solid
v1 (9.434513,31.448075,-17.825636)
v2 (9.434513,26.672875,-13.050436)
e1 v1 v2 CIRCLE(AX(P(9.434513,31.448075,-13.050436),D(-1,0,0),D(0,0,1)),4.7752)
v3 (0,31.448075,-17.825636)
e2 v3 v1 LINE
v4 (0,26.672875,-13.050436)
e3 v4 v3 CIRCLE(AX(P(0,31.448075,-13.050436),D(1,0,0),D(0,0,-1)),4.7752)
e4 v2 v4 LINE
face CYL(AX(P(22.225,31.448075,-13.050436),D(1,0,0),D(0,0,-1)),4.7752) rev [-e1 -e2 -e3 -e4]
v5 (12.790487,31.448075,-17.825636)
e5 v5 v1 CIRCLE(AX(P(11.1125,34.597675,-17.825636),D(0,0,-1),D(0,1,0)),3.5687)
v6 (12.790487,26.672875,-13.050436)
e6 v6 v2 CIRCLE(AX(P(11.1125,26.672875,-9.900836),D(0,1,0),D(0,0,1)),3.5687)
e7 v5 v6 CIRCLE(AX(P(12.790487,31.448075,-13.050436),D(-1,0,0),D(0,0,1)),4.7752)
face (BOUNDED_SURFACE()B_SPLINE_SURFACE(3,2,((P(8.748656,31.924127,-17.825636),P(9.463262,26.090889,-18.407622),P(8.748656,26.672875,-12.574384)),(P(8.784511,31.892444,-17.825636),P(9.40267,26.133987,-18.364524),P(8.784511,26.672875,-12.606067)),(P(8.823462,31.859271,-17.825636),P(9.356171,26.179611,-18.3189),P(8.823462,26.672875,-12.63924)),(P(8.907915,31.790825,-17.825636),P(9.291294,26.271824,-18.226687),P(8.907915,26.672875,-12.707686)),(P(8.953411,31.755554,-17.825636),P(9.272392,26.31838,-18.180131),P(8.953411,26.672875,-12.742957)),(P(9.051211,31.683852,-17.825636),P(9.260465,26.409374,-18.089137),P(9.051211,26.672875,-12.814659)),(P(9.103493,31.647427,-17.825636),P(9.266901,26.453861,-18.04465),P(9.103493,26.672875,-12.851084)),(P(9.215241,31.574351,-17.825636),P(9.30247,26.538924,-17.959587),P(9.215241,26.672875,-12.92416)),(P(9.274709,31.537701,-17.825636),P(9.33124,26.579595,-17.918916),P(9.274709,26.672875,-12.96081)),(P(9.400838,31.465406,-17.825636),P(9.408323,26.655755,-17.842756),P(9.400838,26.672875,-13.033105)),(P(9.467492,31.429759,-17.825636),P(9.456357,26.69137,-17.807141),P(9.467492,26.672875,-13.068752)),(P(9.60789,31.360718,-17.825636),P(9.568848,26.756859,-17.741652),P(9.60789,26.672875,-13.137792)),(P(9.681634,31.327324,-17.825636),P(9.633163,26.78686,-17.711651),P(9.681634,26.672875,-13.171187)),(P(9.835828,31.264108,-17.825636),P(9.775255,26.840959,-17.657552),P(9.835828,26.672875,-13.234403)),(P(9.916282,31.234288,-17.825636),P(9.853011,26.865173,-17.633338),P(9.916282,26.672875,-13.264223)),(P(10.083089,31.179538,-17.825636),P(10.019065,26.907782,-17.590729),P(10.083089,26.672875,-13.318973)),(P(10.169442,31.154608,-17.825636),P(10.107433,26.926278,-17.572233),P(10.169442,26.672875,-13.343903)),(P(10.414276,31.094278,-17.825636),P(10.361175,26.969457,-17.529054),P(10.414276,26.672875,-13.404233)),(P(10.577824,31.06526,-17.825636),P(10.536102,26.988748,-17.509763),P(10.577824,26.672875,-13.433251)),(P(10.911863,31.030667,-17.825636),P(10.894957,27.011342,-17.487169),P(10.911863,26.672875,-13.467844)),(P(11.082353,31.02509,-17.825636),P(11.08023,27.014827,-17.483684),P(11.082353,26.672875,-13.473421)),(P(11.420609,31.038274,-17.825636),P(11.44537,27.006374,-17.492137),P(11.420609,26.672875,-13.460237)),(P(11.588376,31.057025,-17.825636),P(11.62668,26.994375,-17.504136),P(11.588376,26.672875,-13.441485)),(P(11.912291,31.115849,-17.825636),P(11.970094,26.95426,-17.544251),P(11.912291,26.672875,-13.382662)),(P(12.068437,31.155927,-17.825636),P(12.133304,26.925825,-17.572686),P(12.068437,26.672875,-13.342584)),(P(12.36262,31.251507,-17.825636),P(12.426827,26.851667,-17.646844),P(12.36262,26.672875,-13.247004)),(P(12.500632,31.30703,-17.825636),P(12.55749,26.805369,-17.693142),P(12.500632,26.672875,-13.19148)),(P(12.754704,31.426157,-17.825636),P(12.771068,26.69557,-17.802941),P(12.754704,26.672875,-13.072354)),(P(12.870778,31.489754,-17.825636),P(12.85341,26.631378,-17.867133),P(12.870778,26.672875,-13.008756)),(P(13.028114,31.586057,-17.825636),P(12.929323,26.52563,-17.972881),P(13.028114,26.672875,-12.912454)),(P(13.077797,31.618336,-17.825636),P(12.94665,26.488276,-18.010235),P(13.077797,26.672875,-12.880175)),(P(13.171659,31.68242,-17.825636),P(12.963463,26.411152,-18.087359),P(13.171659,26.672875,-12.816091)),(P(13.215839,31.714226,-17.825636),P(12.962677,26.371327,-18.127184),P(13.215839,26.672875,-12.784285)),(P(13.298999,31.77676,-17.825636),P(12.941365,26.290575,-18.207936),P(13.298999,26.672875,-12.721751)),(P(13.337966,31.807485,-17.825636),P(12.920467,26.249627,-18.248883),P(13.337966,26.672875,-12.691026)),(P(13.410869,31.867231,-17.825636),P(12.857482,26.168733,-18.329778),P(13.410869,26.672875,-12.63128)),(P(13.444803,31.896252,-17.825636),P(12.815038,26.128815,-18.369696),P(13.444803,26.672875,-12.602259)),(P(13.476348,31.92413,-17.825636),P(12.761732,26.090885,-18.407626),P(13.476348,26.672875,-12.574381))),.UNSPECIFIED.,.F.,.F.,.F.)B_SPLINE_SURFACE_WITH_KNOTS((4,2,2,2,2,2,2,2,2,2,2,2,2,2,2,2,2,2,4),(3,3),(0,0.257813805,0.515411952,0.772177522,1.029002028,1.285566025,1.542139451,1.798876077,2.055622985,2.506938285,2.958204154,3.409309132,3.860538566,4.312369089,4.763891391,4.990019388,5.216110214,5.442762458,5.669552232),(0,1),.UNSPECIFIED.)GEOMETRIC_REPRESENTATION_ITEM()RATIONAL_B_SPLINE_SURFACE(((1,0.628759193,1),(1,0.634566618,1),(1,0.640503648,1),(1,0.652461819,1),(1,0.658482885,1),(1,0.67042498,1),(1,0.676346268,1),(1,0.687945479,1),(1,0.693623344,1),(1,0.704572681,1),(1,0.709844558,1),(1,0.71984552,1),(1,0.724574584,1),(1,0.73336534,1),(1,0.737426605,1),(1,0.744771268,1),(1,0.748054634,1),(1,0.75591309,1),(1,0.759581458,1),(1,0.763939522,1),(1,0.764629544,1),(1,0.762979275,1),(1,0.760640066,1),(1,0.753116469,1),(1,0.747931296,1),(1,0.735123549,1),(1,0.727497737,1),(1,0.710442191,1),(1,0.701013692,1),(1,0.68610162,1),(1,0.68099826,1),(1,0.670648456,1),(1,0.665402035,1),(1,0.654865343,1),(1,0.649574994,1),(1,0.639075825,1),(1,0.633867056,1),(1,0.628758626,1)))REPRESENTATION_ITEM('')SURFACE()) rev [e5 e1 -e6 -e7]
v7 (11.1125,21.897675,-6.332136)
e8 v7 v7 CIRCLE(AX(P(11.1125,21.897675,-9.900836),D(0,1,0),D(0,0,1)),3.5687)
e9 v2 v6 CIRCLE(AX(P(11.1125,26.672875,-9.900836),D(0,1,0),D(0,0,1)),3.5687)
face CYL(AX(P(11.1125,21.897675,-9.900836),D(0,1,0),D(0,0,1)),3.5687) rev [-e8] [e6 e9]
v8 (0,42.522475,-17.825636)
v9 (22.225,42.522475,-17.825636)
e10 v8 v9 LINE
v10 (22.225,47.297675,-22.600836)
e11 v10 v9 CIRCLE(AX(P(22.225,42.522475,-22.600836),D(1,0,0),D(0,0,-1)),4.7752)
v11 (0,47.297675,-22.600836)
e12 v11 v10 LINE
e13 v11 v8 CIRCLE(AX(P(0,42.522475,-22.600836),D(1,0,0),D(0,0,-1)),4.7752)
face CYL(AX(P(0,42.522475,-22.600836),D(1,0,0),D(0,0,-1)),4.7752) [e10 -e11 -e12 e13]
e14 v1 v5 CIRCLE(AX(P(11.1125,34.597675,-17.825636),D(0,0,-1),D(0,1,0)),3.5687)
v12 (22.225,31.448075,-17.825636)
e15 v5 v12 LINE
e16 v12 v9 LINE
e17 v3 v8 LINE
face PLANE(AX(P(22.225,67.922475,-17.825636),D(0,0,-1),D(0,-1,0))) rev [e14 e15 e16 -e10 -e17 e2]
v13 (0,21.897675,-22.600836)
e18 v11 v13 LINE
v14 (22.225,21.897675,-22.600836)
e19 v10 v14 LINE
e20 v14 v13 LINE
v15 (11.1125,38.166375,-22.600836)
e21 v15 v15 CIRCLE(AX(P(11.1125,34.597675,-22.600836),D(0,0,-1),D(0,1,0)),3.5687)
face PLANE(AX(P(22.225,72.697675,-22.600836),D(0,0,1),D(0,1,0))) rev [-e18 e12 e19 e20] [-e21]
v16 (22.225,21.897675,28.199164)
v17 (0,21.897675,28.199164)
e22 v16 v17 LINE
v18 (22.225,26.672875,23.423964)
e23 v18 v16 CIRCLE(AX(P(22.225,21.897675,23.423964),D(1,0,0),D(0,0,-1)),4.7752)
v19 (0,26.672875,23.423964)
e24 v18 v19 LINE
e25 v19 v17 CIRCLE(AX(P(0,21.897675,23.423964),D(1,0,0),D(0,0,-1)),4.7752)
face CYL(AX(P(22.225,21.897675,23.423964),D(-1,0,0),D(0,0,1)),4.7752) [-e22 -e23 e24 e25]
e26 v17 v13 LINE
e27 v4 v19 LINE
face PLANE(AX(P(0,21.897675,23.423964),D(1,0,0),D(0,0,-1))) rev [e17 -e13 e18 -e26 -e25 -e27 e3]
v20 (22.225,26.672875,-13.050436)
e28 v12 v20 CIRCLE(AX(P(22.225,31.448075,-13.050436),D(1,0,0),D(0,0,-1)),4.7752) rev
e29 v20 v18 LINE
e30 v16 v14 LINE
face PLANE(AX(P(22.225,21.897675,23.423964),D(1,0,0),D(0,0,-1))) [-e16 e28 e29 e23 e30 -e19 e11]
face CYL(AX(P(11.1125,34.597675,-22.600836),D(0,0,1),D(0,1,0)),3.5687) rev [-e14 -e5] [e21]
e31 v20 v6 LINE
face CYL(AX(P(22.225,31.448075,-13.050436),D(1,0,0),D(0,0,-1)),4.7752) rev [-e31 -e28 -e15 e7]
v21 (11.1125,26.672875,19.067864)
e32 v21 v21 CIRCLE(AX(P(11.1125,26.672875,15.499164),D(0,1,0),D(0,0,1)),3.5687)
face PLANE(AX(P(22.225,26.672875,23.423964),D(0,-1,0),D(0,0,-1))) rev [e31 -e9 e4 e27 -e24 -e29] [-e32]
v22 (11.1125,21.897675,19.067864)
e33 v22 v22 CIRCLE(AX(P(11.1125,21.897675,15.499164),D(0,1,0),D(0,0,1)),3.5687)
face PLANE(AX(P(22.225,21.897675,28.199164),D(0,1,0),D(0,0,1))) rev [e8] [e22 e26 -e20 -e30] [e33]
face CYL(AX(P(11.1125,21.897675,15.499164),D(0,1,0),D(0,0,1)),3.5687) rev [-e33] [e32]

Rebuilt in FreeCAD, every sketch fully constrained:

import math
import FreeCAD as App
import Part
import Sketcher
Q = App.Units.Quantity


def edges_at(feature, points):
    """Names of the edges that pass closest to the given points."""
    edges = feature.Shape.Edges
    near = lambda p: min(range(len(edges)), key=lambda i: edges[i].distToShape(Part.Vertex(*p))[0])
    return sorted({f"Edge{near(p) + 1}" for p in points})

doc = App.newDocument("Part")
body = doc.addObject("PartDesign::Body", "Body")

# Sketch on YZ plane
sketch1 = body.newObject("Sketcher::SketchObject", "Sketch")
sketch1.AttachmentSupport = (doc.getObject("YZ_Plane"), [""])
sketch1.MapMode = "FlatFace"
sketch1.addGeometry([
    Part.LineSegment(App.Vector(21.9, 28.2, 0), App.Vector(21.9, -22.6, 0)),
    Part.LineSegment(App.Vector(21.9, -22.6, 0), App.Vector(26.7, -17.8, 0)),
    Part.LineSegment(App.Vector(26.7, -17.8, 0), App.Vector(26.7, 23.4, 0)),
    Part.ArcOfCircle(Part.Circle(App.Vector(21.9, 23.4, 0), App.Vector(0, 0, 1), 4.8), math.radians(0), math.radians(90)),
], False)
sketch1.addConstraint([
    Sketcher.Constraint("Coincident", 0, 2, 1, 1),
    Sketcher.Constraint("Coincident", 1, 2, 2, 1),
    Sketcher.Constraint("Tangent", 2, 2, 3, 1),
    Sketcher.Constraint("Coincident", 3, 2, 0, 1),
    Sketcher.Constraint("Vertical", 0),
    Sketcher.Constraint("Vertical", 2),
    Sketcher.Constraint("Vertical", 3, 3, 0, 2),
    Sketcher.Constraint("DistanceY", 0, 2, 0, 1, Q("2 in")),
    Sketcher.Constraint("Angle", 1, Q("45 deg")),
    Sketcher.Constraint("Radius", 3, Q("0.188 in")),
    Sketcher.Constraint("DistanceX", -1, 1, 3, 3, Q("21.897675 mm")),
    Sketcher.Constraint("DistanceY", -1, 1, 3, 3, Q("23.423964 mm")),
])
pad1 = body.newObject("PartDesign::Pad", "Pad")
pad1.Profile = sketch1
pad1.Length = Q("0.875 in")

# Sketch on XZ plane
sketch2 = body.newObject("Sketcher::SketchObject", "Sketch001")
sketch2.AttachmentSupport = (doc.getObject("XZ_Plane"), [""])
sketch2.MapMode = "FlatFace"
sketch2.AttachmentOffset = App.Placement(App.Vector(0, 0, -26.672875), App.Rotation())
sketch2.addGeometry([
    Part.Circle(App.Vector(11.1, 15.5, 0), App.Vector(0, 0, 1), 3.6),
    Part.Circle(App.Vector(11.1, -9.9, 0), App.Vector(0, 0, 1), 3.6),
], False)
sketch2.addConstraint([
    Sketcher.Constraint("Equal", 0, 1),
    Sketcher.Constraint("Vertical", 0, 3, 1, 3),
    Sketcher.Constraint("Diameter", 0, Q("0.281 in")),
    Sketcher.Constraint("DistanceY", 1, 3, 0, 3, Q("1 in")),
    Sketcher.Constraint("DistanceX", -1, 1, 0, 3, Q("0.4375 in")),
    Sketcher.Constraint("DistanceY", -1, 1, 0, 3, Q("15.499164 mm")),
])
pocket1 = body.newObject("PartDesign::Pocket", "Pocket")
pocket1.Profile = sketch2
pocket1.Type = "ThroughAll"
pocket1.Reversed = True
body2 = doc.addObject("PartDesign::Body", "Body001")
doc.recompute()

body2.BaseFeature = body
doc.recompute()

mirroring = doc.addObject("Part::Mirroring", "Mirroring")
mirroring.Source = body
mirroring.Base = App.Vector(22.225, 21.897675, -22.600836)
mirroring.Normal = App.Vector(0, -0.707106781, 0.707106781)
body3 = doc.addObject("PartDesign::Body", "Body002")
body3.BaseFeature = mirroring
boolean = body2.newObject("PartDesign::Boolean", "Boolean")
boolean.Type = "Fuse"
boolean.addObjects([body3])
doc.recompute()

fillet = body2.newObject("PartDesign::Fillet", "Fillet")
fillet.Base = (boolean, edges_at(boolean, [(11.113, 26.673, -17.826)]))
fillet.Radius = Q("0.188 in")

# Sketch on YZ plane
sketch3 = body2.newObject("Sketcher::SketchObject", "Sketch002")
sketch3.AttachmentSupport = (doc.getObject("YZ_Plane001"), [""])
sketch3.MapMode = "FlatFace"
sketch3.AttachmentOffset = App.Placement(App.Vector(0, 0, 0.875 * 25.4), App.Rotation())
sketch3.addGeometry([
    Part.LineSegment(App.Vector(67.9, -17.8, 0), App.Vector(42.5, -17.8, 0)),
    Part.ArcOfCircle(Part.Circle(App.Vector(42.5, -22.6, 0), App.Vector(0, 0, 1), 4.8), math.radians(0), math.radians(90)),
    Part.LineSegment(App.Vector(47.3, -22.6, 0), App.Vector(72.7, -22.6, 0)),
    Part.ArcOfCircle(Part.Circle(App.Vector(67.9, -22.6, 0), App.Vector(0, 0, 1), 4.8), math.radians(0), math.radians(90)),
], False)
sketch3.addConstraint([
    Sketcher.Constraint("Tangent", 0, 2, 1, 2),
    Sketcher.Constraint("Coincident", 1, 1, 2, 1),
    Sketcher.Constraint("Coincident", 2, 2, 3, 1),
    Sketcher.Constraint("Tangent", 3, 2, 0, 1),
    Sketcher.Constraint("Horizontal", 0),
    Sketcher.Constraint("Horizontal", 2),
    Sketcher.Constraint("Equal", 1, 3),
    Sketcher.Constraint("Horizontal", 3, 3, 1, 1),
    Sketcher.Constraint("DistanceX", 0, 2, 0, 1, Q("1 in")),
    Sketcher.Constraint("Radius", 1, Q("0.188 in")),
    Sketcher.Constraint("DistanceX", -1, 1, 1, 3, Q("42.522475 mm")),
    Sketcher.Constraint("DistanceY", 1, 3, -1, 1, Q("22.600836 mm")),
])
pocket2 = body2.newObject("PartDesign::Pocket", "Pocket001")
pocket2.Profile = sketch3
pocket2.Type = "ThroughAll"
mirroring.Visibility = False

doc.recompute()
